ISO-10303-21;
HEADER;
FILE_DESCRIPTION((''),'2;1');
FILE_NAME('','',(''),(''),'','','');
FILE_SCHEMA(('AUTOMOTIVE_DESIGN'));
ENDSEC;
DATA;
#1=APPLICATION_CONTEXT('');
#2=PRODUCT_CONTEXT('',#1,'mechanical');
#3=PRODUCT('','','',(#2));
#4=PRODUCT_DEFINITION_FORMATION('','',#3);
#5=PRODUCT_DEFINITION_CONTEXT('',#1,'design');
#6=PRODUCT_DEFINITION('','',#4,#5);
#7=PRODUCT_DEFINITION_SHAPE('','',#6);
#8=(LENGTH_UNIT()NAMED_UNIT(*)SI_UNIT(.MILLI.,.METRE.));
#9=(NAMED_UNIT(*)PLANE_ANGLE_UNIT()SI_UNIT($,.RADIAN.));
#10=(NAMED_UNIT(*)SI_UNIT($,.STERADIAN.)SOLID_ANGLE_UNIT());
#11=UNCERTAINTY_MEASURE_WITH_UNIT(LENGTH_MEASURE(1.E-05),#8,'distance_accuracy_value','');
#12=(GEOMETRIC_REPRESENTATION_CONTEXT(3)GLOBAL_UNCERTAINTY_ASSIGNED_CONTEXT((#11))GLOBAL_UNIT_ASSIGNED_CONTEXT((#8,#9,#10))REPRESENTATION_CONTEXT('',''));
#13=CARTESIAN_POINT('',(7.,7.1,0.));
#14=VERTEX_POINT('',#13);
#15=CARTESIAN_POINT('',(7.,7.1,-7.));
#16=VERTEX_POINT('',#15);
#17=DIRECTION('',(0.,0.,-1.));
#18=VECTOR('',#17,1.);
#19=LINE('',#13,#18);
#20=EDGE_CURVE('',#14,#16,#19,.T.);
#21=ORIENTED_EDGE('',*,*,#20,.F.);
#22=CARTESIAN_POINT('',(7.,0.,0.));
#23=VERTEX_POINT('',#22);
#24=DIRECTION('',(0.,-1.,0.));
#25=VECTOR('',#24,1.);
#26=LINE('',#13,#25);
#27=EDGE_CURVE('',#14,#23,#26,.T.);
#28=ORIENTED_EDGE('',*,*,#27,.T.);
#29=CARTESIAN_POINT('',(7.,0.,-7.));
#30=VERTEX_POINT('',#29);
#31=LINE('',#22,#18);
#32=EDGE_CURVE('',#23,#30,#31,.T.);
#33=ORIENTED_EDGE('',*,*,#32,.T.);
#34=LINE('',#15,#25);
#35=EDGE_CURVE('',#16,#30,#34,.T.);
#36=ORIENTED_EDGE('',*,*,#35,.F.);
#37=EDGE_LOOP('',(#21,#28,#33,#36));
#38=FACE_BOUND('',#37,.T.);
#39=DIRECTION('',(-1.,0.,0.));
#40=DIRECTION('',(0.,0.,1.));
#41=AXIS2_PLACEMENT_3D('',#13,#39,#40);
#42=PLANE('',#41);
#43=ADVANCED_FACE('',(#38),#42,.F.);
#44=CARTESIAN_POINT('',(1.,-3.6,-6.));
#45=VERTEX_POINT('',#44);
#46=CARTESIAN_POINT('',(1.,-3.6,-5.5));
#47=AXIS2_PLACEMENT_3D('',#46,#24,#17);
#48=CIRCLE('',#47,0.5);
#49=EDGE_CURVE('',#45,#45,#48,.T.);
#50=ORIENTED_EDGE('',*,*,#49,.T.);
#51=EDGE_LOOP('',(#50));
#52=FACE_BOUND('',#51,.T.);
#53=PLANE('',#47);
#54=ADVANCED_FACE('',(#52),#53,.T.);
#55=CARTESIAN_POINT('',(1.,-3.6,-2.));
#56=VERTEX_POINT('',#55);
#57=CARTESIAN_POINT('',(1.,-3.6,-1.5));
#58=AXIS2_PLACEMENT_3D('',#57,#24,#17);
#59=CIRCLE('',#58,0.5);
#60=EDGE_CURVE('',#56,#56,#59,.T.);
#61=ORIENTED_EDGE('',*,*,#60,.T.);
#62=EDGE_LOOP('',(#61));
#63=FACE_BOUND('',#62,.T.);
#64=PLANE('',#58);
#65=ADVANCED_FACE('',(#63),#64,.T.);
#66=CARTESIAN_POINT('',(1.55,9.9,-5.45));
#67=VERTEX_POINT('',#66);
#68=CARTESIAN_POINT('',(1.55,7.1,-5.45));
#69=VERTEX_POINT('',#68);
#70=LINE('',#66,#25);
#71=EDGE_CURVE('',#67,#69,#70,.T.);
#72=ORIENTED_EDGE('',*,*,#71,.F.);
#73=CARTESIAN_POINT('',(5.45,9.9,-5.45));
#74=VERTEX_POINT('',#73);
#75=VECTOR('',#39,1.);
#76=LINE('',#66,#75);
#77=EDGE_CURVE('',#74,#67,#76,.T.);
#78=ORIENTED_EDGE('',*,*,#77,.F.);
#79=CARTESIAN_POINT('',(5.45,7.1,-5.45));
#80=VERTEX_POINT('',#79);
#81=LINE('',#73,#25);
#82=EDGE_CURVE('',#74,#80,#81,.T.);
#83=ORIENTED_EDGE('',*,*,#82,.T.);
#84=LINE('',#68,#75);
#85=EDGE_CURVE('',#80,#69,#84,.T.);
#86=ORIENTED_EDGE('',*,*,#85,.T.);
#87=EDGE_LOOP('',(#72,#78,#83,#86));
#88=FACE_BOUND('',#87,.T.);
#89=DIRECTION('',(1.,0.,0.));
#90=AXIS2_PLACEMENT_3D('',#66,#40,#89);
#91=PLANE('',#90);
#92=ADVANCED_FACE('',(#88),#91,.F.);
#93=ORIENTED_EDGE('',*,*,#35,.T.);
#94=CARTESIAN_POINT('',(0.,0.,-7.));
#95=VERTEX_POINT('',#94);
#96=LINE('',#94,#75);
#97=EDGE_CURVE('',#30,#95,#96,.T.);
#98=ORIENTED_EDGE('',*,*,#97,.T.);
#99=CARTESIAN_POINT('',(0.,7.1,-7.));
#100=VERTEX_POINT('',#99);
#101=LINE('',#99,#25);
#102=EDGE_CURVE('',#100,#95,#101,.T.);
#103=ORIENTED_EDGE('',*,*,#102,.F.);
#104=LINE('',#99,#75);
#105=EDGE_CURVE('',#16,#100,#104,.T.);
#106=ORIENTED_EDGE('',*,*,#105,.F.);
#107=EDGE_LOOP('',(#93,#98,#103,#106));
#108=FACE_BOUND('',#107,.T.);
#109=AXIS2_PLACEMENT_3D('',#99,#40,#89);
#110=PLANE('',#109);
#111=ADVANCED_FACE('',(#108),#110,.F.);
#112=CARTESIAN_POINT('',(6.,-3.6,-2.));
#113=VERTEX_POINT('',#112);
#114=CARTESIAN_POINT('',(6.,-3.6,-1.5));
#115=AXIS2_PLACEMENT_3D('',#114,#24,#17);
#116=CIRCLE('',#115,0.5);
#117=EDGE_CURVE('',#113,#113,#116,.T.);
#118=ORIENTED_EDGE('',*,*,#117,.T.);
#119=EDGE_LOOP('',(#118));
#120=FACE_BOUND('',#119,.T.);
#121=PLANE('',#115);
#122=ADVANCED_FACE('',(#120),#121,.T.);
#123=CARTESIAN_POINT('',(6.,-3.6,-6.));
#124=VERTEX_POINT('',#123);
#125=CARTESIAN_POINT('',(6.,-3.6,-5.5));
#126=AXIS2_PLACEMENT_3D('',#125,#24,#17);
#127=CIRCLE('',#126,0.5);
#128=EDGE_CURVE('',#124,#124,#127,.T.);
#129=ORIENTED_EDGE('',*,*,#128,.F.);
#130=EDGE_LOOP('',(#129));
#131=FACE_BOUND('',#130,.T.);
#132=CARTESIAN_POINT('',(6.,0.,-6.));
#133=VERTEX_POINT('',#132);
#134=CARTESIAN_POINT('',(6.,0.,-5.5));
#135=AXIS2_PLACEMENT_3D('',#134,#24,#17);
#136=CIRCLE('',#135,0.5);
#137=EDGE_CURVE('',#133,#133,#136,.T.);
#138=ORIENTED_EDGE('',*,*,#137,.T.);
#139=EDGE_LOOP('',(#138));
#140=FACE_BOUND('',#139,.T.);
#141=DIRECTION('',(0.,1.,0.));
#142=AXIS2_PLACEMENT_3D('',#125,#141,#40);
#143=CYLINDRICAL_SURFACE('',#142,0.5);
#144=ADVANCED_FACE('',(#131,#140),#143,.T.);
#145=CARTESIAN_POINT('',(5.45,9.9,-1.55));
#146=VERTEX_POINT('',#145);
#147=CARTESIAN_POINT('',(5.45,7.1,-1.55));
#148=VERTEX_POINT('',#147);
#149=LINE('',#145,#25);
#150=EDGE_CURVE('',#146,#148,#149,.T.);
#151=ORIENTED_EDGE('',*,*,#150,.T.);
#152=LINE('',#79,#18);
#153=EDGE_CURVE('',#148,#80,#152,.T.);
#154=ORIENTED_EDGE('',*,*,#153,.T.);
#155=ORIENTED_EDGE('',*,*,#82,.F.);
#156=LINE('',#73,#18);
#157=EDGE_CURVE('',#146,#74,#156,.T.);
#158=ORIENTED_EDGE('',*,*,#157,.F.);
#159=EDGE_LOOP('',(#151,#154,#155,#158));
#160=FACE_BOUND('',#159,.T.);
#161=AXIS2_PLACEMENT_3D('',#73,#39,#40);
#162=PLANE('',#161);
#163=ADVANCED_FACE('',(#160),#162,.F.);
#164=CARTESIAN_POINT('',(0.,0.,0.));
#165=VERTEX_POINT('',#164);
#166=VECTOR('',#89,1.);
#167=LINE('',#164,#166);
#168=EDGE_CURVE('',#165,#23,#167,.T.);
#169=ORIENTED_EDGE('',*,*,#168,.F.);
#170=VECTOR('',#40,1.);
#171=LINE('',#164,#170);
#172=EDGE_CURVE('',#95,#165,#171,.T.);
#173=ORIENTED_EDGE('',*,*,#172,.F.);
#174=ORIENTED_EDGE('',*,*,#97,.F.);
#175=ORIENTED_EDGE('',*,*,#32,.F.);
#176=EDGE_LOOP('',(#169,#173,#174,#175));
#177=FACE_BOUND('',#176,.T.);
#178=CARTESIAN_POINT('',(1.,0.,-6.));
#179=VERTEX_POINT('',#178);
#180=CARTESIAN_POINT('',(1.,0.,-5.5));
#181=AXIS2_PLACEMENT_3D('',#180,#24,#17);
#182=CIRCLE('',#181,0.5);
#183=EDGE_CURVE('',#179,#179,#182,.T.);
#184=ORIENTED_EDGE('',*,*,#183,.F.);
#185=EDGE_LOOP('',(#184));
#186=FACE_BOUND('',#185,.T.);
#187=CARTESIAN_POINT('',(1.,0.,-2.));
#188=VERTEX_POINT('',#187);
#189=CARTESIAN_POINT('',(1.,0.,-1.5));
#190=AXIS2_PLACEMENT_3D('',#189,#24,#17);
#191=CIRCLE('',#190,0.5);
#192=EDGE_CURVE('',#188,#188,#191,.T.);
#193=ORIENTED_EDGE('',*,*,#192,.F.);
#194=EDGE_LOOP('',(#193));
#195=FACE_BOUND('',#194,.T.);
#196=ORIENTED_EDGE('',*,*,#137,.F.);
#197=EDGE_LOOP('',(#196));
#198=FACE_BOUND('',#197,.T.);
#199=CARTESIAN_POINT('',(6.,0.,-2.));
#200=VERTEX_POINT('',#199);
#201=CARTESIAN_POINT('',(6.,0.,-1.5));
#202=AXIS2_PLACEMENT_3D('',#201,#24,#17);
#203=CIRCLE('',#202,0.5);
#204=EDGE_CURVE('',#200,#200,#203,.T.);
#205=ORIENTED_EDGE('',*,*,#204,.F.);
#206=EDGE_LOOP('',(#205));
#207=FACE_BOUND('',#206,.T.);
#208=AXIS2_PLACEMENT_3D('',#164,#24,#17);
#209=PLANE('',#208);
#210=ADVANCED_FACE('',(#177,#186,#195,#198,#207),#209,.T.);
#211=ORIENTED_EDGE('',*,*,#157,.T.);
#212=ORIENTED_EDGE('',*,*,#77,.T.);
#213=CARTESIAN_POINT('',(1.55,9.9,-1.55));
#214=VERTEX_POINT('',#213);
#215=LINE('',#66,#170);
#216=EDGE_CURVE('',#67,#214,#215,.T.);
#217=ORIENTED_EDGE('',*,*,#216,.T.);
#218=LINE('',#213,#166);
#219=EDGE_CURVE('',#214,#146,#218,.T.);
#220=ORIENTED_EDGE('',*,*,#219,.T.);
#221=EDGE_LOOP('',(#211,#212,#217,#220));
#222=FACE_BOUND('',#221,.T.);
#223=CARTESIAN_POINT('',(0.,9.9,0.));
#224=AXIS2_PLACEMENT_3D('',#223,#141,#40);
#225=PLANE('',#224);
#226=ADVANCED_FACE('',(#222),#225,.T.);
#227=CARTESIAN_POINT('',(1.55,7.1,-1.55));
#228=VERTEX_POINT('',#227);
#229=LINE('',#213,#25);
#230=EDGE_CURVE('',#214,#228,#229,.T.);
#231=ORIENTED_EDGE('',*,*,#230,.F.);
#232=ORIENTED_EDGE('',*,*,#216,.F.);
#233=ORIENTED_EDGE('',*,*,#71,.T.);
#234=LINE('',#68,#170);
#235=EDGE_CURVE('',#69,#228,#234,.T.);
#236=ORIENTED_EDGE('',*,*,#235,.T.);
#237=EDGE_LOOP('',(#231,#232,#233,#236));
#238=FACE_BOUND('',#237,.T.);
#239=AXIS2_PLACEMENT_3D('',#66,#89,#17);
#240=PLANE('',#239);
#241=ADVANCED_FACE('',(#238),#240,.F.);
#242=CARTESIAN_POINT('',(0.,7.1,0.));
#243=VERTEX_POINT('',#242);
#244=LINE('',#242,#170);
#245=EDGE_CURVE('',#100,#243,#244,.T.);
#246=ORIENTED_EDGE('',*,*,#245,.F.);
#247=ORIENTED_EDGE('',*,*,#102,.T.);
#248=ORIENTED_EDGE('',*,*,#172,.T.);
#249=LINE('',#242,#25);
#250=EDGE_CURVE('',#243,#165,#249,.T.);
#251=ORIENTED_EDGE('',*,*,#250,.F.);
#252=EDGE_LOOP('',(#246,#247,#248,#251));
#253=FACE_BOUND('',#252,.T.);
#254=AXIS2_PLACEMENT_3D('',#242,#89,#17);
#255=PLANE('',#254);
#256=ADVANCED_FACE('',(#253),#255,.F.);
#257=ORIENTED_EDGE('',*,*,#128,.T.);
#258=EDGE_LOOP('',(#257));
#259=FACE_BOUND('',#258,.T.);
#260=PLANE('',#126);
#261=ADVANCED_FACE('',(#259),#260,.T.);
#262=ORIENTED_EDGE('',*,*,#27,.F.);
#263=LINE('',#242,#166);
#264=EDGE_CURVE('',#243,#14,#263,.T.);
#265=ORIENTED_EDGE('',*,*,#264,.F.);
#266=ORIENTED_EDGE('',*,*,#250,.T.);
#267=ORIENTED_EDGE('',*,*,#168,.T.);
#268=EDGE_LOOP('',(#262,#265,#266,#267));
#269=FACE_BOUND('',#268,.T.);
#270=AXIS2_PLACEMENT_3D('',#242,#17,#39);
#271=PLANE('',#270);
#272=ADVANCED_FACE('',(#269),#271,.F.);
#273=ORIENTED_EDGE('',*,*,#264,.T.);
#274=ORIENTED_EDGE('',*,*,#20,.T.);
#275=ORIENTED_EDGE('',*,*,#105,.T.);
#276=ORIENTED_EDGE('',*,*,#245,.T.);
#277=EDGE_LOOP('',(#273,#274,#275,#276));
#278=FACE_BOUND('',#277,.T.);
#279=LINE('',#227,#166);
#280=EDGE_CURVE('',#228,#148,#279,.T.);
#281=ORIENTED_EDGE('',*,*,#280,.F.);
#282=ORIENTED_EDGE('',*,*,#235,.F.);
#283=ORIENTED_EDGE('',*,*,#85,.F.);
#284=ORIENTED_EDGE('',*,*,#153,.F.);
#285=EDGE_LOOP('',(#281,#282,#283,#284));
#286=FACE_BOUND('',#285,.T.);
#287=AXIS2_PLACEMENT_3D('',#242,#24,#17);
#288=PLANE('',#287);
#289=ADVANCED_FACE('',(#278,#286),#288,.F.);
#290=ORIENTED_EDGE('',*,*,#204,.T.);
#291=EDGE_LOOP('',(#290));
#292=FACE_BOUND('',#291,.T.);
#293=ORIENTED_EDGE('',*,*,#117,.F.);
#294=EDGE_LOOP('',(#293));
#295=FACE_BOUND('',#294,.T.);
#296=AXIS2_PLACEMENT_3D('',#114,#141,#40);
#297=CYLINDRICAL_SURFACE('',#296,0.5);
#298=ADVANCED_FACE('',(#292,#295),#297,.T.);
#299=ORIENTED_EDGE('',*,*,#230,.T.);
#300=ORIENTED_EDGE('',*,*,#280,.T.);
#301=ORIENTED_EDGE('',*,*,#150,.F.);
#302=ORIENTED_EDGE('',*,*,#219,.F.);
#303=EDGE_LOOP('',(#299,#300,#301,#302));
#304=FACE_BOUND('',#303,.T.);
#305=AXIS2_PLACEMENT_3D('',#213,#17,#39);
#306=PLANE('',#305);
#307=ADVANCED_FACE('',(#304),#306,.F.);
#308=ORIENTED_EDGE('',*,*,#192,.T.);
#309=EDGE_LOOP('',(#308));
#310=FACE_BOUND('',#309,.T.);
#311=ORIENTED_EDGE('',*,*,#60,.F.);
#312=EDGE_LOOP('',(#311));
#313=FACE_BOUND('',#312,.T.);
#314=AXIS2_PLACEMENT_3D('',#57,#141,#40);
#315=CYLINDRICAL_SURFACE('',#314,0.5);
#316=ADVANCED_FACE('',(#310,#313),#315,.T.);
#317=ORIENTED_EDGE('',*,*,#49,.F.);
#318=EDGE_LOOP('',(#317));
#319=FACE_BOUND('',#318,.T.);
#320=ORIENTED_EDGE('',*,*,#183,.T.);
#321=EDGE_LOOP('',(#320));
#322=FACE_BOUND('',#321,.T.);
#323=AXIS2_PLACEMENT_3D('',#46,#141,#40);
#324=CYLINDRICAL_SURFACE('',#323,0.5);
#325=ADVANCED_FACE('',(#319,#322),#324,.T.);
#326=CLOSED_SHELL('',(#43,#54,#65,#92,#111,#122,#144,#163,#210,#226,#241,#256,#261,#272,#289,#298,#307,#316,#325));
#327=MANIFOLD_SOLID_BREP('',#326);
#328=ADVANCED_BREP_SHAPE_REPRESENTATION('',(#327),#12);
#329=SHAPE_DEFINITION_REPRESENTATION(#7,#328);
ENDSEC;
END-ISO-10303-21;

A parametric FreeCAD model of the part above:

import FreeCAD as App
import Part
import Sketcher
from FreeCAD import Vector


def add_polygon(sketch, points):
    """Adds a closed chain of lines whose ends are joined by coincident constraints."""
    first, n = sketch.GeometryCount, len(points)
    for a, b in zip(points, points[1:] + points[:1]):
        sketch.addGeometry(Part.LineSegment(App.Vector(*a, 0), App.Vector(*b, 0)), False)
    for i in range(n):
        sketch.addConstraint(Sketcher.Constraint("Coincident", first + i, 2, first + (i + 1) % n, 1))

doc = App.newDocument("Part")
params = doc.addObject("Spreadsheet::Sheet", "Params")
for row, (alias, value) in enumerate([
    ("sketch1_width", "7 mm"),
    ("pad1_length", "7.1 mm"),
    ("sketch2_width", "3.9 mm"),
    ("pad2_length", "2.8 mm"),
    ("sketch3_diameter", "1 mm"),
    ("pad3_length", "3.6 mm"),
], start=1):
    params.set(f"A{row}", alias)
    params.set(f"B{row}", "=" + value)
    params.setAlias(f"B{row}", alias)

body = doc.addObject("PartDesign::Body", "Body")

sketch1 = doc.addObject("Sketcher::SketchObject", "Sketch")
body.addObject(sketch1)
sketch1.AttachmentSupport = (doc.XZ_Plane, [""])
sketch1.MapMode = "FlatFace"
add_polygon(sketch1, [(0, -7), (0, 0), (7, 0), (7, -7)])
sketch1.addConstraint(Sketcher.Constraint("Vertical", 0))
sketch1.addConstraint(Sketcher.Constraint("Horizontal", 1))
sketch1.addConstraint(Sketcher.Constraint("Vertical", 2))
sketch1.addConstraint(Sketcher.Constraint("Horizontal", 3))
sketch1.addConstraint(Sketcher.Constraint("Coincident", 0, 2, -1, 1))
sketch1.addConstraint(Sketcher.Constraint("Equal", 3, 0))
sketch1.addConstraint(Sketcher.Constraint("DistanceX", 1, 1, 1, 2, 7.0))
sketch1.setExpression("Constraints[10]", "Params.sketch1_width")
pad1 = doc.addObject("PartDesign::Pad", "Pad")
body.addObject(pad1)
pad1.Profile = sketch1
pad1.setExpression("Length", "Params.pad1_length")
pad1.Reversed = True

sketch2 = doc.addObject("Sketcher::SketchObject", "Sketch001")
body.addObject(sketch2)
sketch2.AttachmentSupport = (doc.XZ_Plane, [""])
sketch2.MapMode = "FlatFace"
sketch2.AttachmentOffset = App.Placement(Vector(0, 0, -7.1), App.Rotation())
add_polygon(sketch2, [(1.6, -5.5), (1.6, -1.6), (5.5, -1.6), (5.5, -5.5)])
sketch2.addConstraint(Sketcher.Constraint("Vertical", 0))
sketch2.addConstraint(Sketcher.Constraint("Horizontal", 1))
sketch2.addConstraint(Sketcher.Constraint("Vertical", 2))
sketch2.addConstraint(Sketcher.Constraint("Horizontal", 3))
sketch2.addConstraint(Sketcher.Constraint("Equal", 3, 0))
sketch2.addConstraint(Sketcher.Constraint("DistanceX", 1, 1, 1, 2, 3.9))
sketch2.addConstraint(Sketcher.Constraint("DistanceX", -1, 1, 0, 2, 1.55))
sketch2.addConstraint(Sketcher.Constraint("DistanceY", 0, 2, -1, 1, 1.55))
sketch2.setExpression("Constraints[9]", "Params.sketch2_width")
pad2 = doc.addObject("PartDesign::Pad", "Pad001")
body.addObject(pad2)
pad2.Profile = sketch2
pad2.setExpression("Length", "Params.pad2_length")
pad2.Reversed = True

sketch3 = doc.addObject("Sketcher::SketchObject", "Sketch002")
body.addObject(sketch3)
sketch3.AttachmentSupport = (doc.XZ_Plane, [""])
sketch3.MapMode = "FlatFace"
sketch3.addGeometry(Part.Circle(Vector(1, -1.5, 0), Vector(0, 0, 1), 0.5), False)
sketch3.addGeometry(Part.Circle(Vector(6, -1.5, 0), Vector(0, 0, 1), 0.5), False)
sketch3.addGeometry(Part.Circle(Vector(6, -5.5, 0), Vector(0, 0, 1), 0.5), False)
sketch3.addGeometry(Part.Circle(Vector(1, -5.5, 0), Vector(0, 0, 1), 0.5), False)
sketch3.addConstraint(Sketcher.Constraint("Equal", 0, 1))
sketch3.addConstraint(Sketcher.Constraint("Equal", 1, 2))
sketch3.addConstraint(Sketcher.Constraint("Equal", 2, 3))
sketch3.addConstraint(Sketcher.Constraint("Horizontal", 0, 3, 1, 3))
sketch3.addConstraint(Sketcher.Constraint("Horizontal", 2, 3, 3, 3))
sketch3.addConstraint(Sketcher.Constraint("Vertical", 1, 3, 2, 3))
sketch3.addConstraint(Sketcher.Constraint("Vertical", 0, 3, 3, 3))
sketch3.addConstraint(Sketcher.Constraint("Diameter", 0, 1.0))
sketch3.addConstraint(Sketcher.Constraint("DistanceX", -1, 1, 0, 3, 1.0))
sketch3.addConstraint(Sketcher.Constraint("DistanceX", -1, 1, 1, 3, 6.0))
sketch3.addConstraint(Sketcher.Constraint("DistanceY", 2, 3, 1, 3, 4.0))
sketch3.addConstraint(Sketcher.Constraint("DistanceY", 0, 3, -1, 1, 1.5))
sketch3.setExpression("Constraints[7]", "Params.sketch3_diameter")
pad3 = doc.addObject("PartDesign::Pad", "Pad002")
body.addObject(pad3)
pad3.Profile = sketch3
pad3.setExpression("Length", "Params.pad3_length")

doc.recompute()
